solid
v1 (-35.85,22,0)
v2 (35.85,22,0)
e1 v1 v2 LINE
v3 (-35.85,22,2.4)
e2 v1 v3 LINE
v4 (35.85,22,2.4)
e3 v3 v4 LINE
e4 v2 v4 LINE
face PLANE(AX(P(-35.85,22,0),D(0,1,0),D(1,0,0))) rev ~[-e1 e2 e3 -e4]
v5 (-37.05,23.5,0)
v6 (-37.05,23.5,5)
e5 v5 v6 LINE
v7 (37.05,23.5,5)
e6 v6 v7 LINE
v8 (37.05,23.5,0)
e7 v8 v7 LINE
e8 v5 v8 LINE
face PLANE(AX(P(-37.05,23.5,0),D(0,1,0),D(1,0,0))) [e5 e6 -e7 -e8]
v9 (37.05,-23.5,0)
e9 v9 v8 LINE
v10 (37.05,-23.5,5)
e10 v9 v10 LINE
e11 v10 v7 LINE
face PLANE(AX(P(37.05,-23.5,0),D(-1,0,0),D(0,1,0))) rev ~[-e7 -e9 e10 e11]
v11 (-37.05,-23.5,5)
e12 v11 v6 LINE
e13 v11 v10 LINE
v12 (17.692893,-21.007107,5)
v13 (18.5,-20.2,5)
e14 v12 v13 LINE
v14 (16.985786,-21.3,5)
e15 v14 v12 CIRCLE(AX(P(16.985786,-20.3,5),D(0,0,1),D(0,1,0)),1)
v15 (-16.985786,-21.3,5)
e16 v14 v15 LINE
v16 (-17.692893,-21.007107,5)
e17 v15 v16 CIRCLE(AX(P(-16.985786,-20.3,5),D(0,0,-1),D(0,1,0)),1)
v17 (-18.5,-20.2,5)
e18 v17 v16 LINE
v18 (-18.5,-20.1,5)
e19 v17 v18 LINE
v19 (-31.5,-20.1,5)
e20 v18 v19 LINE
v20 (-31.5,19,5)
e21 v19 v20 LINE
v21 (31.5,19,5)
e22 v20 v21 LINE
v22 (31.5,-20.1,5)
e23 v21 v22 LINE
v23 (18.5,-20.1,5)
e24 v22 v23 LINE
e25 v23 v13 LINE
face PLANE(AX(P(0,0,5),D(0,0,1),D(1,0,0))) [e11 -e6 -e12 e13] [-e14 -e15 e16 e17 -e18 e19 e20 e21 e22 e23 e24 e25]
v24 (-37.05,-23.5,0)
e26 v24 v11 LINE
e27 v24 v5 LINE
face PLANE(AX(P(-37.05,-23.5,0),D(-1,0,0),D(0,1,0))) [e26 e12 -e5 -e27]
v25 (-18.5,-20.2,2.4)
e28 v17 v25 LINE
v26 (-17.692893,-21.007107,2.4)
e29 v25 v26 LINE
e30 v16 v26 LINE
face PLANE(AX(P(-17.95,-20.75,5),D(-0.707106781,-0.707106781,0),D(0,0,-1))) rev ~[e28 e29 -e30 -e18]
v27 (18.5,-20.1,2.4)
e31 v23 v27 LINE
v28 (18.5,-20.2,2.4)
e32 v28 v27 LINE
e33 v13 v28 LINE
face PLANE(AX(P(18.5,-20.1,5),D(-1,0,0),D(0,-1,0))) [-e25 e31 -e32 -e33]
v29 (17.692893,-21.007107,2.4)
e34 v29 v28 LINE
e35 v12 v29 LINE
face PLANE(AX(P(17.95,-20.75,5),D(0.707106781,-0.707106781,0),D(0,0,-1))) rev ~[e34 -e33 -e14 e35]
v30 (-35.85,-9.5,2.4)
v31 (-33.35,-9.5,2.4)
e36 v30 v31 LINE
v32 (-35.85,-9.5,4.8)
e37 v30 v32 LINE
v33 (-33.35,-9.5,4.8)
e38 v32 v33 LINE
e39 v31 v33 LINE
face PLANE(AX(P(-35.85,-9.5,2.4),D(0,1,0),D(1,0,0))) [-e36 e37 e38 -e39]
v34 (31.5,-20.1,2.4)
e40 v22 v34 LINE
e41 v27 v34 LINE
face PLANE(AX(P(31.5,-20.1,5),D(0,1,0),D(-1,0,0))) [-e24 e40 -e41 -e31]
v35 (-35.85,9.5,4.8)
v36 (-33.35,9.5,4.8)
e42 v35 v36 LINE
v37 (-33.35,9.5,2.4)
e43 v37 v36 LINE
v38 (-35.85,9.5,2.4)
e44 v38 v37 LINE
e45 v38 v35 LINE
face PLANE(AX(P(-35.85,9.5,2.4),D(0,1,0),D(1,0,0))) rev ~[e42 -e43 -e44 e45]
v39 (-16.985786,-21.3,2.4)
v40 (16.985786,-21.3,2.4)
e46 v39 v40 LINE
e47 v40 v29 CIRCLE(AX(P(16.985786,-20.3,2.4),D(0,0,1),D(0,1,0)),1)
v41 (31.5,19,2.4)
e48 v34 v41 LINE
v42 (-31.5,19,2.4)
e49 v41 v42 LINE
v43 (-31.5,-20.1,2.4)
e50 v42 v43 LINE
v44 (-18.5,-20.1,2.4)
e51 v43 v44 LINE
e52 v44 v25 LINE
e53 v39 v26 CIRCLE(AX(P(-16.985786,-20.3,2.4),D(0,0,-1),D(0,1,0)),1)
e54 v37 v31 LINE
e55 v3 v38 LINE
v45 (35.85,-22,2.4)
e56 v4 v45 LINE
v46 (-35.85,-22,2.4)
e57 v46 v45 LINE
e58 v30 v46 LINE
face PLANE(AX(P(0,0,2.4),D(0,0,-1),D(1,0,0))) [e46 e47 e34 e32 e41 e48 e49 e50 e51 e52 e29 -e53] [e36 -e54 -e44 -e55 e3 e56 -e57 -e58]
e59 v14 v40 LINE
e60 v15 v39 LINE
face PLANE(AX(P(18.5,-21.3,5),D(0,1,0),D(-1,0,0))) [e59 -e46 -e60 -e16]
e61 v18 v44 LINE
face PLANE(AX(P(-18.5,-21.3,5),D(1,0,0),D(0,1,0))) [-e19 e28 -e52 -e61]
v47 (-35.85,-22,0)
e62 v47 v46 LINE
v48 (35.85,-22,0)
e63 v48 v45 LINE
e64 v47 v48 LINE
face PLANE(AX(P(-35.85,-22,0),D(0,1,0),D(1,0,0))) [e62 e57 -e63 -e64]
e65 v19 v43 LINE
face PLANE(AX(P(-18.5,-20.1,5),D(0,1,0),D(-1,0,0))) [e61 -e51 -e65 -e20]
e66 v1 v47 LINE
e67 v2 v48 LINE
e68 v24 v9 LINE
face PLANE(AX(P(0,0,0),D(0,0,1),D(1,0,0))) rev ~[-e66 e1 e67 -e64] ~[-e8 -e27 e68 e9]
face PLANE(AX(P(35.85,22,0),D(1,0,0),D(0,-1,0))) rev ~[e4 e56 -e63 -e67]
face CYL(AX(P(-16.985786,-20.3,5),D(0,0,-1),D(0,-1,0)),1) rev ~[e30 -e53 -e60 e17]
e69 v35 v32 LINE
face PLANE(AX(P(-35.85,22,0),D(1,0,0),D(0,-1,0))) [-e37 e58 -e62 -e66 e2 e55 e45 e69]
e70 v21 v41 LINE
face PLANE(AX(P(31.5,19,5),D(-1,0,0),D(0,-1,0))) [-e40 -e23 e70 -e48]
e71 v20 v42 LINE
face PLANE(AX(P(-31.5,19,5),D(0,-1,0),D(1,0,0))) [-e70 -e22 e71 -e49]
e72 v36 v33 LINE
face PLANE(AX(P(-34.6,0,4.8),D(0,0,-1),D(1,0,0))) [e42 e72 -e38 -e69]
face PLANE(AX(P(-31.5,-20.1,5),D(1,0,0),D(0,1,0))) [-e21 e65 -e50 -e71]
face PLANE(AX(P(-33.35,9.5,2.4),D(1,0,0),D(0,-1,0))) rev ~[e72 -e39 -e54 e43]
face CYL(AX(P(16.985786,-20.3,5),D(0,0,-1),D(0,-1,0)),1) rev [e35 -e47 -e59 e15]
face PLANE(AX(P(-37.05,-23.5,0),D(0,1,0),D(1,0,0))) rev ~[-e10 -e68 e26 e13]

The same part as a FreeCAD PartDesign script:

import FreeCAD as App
import Part
import Sketcher
from FreeCAD import Vector
Q = App.Units.Quantity


def edges_at(feature, points):
    """Names of the edges that pass closest to the given points."""
    edges = feature.Shape.Edges
    near = lambda p: min(range(len(edges)), key=lambda i: edges[i].distToShape(Part.Vertex(*p))[0])
    return sorted({f"Edge{near(p) + 1}" for p in points})


def add_polygon(sketch, points):
    """Adds a closed chain of lines whose ends are joined by coincident constraints."""
    first, n = sketch.GeometryCount, len(points)
    for a, b in zip(points, points[1:] + points[:1]):
        sketch.addGeometry(Part.LineSegment(App.Vector(*a, 0), App.Vector(*b, 0)), False)
    for i in range(n):
        sketch.addConstraint(Sketcher.Constraint("Coincident", first + i, 2, first + (i + 1) % n, 1))

doc = App.newDocument("Part")
body = doc.addObject("PartDesign::Body", "Body")

# Sketch on XY plane
sketch1 = body.newObject("Sketcher::SketchObject", "Sketch")
sketch1.AttachmentSupport = (doc.getObject("XY_Plane"), [""])
sketch1.MapMode = "FlatFace"
add_polygon(sketch1, [(-37.05, 23.5), (-37.05, -23.5), (37.05, -23.5), (37.05, 23.5)])  # lines 0-3
sketch1.addConstraint([
    Sketcher.Constraint("Vertical", 0),
    Sketcher.Constraint("Horizontal", 1),
    Sketcher.Constraint("Vertical", 2),
    Sketcher.Constraint("Horizontal", 3),
    Sketcher.Constraint("Symmetric", 0, 2, 2, 2, -1, 1),
    Sketcher.Constraint("DistanceY", 0, 2, 0, 1, Q("47 mm")),
    Sketcher.Constraint("DistanceX", 1, 1, 1, 2, Q("74.1 mm")),
])
pad1 = body.newObject("PartDesign::Pad", "Pad")
pad1.Profile = sketch1
pad1.Length = 5

# Sketch on XY plane
sketch2 = body.newObject("Sketcher::SketchObject", "Sketch001")
sketch2.AttachmentSupport = (doc.getObject("XY_Plane"), [""])
sketch2.MapMode = "FlatFace"
add_polygon(sketch2, [(-35.85, -22), (-35.85, 22), (35.85, 22), (35.85, -22)])  # lines 0-3
sketch2.addConstraint([
    Sketcher.Constraint("Vertical", 0),
    Sketcher.Constraint("Horizontal", 1),
    Sketcher.Constraint("Vertical", 2),
    Sketcher.Constraint("Horizontal", 3),
    Sketcher.Constraint("Symmetric", 0, 2, 2, 2, -1, 1),
    Sketcher.Constraint("DistanceY", 0, 1, 0, 2, Q("44 mm")),
    Sketcher.Constraint("DistanceX", 1, 1, 1, 2, Q("71.7 mm")),
])
pocket1 = body.newObject("PartDesign::Pocket", "Pocket")
pocket1.Profile = sketch2
pocket1.Length = 2.4
pocket1.Reversed = True

# Sketch on XY plane
sketch3 = body.newObject("Sketcher::SketchObject", "Sketch002")
sketch3.AttachmentSupport = (doc.getObject("XY_Plane"), [""])
sketch3.MapMode = "FlatFace"
sketch3.AttachmentOffset = App.Placement(Vector(0, 0, 5), App.Rotation())
add_polygon(sketch3, [(31.5, 19), (-31.5, 19), (-31.5, -20.1), (-18.5, -20.1), (-18.5, -21.3), (18.5, -21.3), (18.5, -20.1), (31.5, -20.1)])  # lines 0-7
sketch3.addConstraint([
    Sketcher.Constraint("Horizontal", 0),
    Sketcher.Constraint("Vertical", 1),
    Sketcher.Constraint("Horizontal", 2),
    Sketcher.Constraint("Vertical", 3),
    Sketcher.Constraint("Horizontal", 4),
    Sketcher.Constraint("Vertical", 5),
    Sketcher.Constraint("Horizontal", 6),
    Sketcher.Constraint("Vertical", 7),
    Sketcher.Constraint("Symmetric", 2, 2, 5, 2, -2),
    Sketcher.Constraint("Equal", 2, 6),
    Sketcher.Constraint("DistanceX", 0, 2, 0, 1, Q("63 mm")),
    Sketcher.Constraint("DistanceX", 2, 1, 2, 2, Q("13 mm")),
    Sketcher.Constraint("DistanceY", 1, 2, 1, 1, Q("39.1 mm")),
    Sketcher.Constraint("DistanceY", 3, 2, 3, 1, Q("1.2 mm")),
    Sketcher.Constraint("DistanceY", -1, 1, 0, 2, Q("19 mm")),
])
pocket2 = body.newObject("PartDesign::Pocket", "Pocket001")
pocket2.Profile = sketch3
pocket2.Length = 5

# Sketch on XY plane
sketch4 = body.newObject("Sketcher::SketchObject", "Sketch003")
sketch4.AttachmentSupport = (doc.getObject("XY_Plane"), [""])
sketch4.MapMode = "FlatFace"
sketch4.AttachmentOffset = App.Placement(Vector(0, 0, 2.4), App.Rotation())
add_polygon(sketch4, [(-35.85, -9.5), (-35.85, 9.5), (-33.35, 9.5), (-33.35, -9.5)])  # lines 0-3
sketch4.addConstraint([
    Sketcher.Constraint("Vertical", 0),
    Sketcher.Constraint("Horizontal", 1),
    Sketcher.Constraint("Vertical", 2),
    Sketcher.Constraint("Horizontal", 3),
    Sketcher.Constraint("DistanceY", 0, 1, 0, 2, Q("19 mm")),
    Sketcher.Constraint("DistanceX", 1, 1, 1, 2, Q("2.5 mm")),
    Sketcher.Constraint("DistanceY", -1, 1, 0, 2, Q("9.5 mm")),
    Sketcher.Constraint("DistanceX", 0, 2, -1, 1, Q("35.85 mm")),
])
pocket3 = body.newObject("PartDesign::Pocket", "Pocket002")
pocket3.Profile = sketch4
pocket3.Length = 2.4
pocket3.Reversed = True
doc.recompute()

chamfer = body.newObject("PartDesign::Chamfer", "Chamfer")
chamfer.Base = (pocket3, edges_at(pocket3, [(-18.5, -21.3, 3.7)]))
chamfer.Size = 1.1
doc.recompute()

chamfer2 = body.newObject("PartDesign::Chamfer", "Chamfer001")
chamfer2.Base = (chamfer, edges_at(chamfer, [(18.5, -21.3, 3.7)]))
chamfer2.Size = 1.1
doc.recompute()

fillet = body.newObject("PartDesign::Fillet", "Fillet")
fillet.Base = (chamfer2, edges_at(chamfer2, [(17.4, -21.3, 3.7)]))
fillet.Radius = 1
doc.recompute()

fillet2 = body.newObject("PartDesign::Fillet", "Fillet001")
fillet2.Base = (fillet, edges_at(fillet, [(-17.4, -21.3, 3.7)]))
fillet2.Radius = 1

doc.recompute()
